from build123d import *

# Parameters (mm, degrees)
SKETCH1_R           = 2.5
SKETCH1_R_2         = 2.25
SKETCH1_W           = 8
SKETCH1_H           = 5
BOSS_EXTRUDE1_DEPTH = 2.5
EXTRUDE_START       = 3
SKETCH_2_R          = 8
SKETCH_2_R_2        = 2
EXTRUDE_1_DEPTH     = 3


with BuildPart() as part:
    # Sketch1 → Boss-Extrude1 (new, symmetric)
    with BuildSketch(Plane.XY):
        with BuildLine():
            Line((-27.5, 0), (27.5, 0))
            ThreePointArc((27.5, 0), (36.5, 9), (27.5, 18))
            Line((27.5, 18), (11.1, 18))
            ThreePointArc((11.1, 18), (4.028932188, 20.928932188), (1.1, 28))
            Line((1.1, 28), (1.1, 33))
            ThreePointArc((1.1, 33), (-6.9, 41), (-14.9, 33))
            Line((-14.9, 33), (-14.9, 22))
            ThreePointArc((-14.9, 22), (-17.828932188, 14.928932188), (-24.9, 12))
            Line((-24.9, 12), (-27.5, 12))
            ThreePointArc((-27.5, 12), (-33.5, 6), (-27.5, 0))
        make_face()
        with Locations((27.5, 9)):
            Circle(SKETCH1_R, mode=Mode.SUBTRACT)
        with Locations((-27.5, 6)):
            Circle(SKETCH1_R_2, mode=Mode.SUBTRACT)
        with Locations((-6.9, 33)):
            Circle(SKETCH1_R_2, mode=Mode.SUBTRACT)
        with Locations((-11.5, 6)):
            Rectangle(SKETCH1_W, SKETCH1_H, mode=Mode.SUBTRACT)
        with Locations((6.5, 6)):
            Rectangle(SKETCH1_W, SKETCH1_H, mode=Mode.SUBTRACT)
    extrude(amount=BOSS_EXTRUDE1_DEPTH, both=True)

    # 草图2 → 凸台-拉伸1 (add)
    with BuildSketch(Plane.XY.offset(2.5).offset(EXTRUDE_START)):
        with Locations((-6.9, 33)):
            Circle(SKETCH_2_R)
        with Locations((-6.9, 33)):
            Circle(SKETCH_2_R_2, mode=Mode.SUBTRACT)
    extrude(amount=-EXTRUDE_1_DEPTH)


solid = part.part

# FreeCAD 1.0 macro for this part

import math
import FreeCAD as App
import Part
import Sketcher


def add_polygon(sketch, points):
    """Adds a closed chain of lines whose ends are joined by coincident constraints."""
    first, n = sketch.GeometryCount, len(points)
    for a, b in zip(points, points[1:] + points[:1]):
        sketch.addGeometry(Part.LineSegment(App.Vector(*a, 0), App.Vector(*b, 0)), False)
    for i in range(n):
        sketch.addConstraint(Sketcher.Constraint("Coincident", first + i, 2, first + (i + 1) % n, 1))

doc = App.newDocument("Part")
params = doc.addObject("Spreadsheet::Sheet", "Params")
for row, (alias, value) in enumerate([
    ("sketch1_diameter", "5 mm"),
    ("sketch1_radius", "9 mm"),
    ("sketch1_radius2", "10 mm"),
    ("sketch1_radius3", "8 mm"),
    ("sketch1_radius4", "6 mm"),
    ("pad1_length", "5 mm"),
    ("sketch2_diameter", "16 mm"),
    ("sketch2_diameter2", "4 mm"),
    ("pad2_length", "3 mm"),
], start=1):
    params.set(f"A{row}", alias)
    params.set(f"B{row}", "=" + value)
    params.setAlias(f"B{row}", alias)

body = doc.addObject("PartDesign::Body", "Body")

# Sketch on XY plane
sketch1 = body.newObject("Sketcher::SketchObject", "Sketch")
sketch1.AttachmentSupport = (doc.getObject("XY_Plane"), [""])
sketch1.MapMode = "FlatFace"
sketch1.addGeometry(Part.LineSegment(App.Vector(-27.5, 0, 0), App.Vector(27.5, 0, 0)), False)  # 0
sketch1.addGeometry(Part.ArcOfCircle(Part.Circle(App.Vector(27.5, 9, 0), App.Vector(0, 0, 1), 9), math.radians(-90), math.radians(90)), False)  # 1
sketch1.addGeometry(Part.LineSegment(App.Vector(27.5, 18, 0), App.Vector(11.1, 18, 0)), False)  # 2
sketch1.addGeometry(Part.ArcOfCircle(Part.Circle(App.Vector(11.1, 28, 0), App.Vector(0, 0, 1), 10), math.radians(180), math.radians(270)), False)  # 3
sketch1.addGeometry(Part.LineSegment(App.Vector(1.1, 28, 0), App.Vector(1.1, 33, 0)), False)  # 4
sketch1.addGeometry(Part.ArcOfCircle(Part.Circle(App.Vector(-6.9, 33, 0), App.Vector(0, 0, 1), 8), math.radians(0), math.radians(180)), False)  # 5
sketch1.addGeometry(Part.LineSegment(App.Vector(-14.9, 33, 0), App.Vector(-14.9, 22, 0)), False)  # 6
sketch1.addGeometry(Part.ArcOfCircle(Part.Circle(App.Vector(-24.9, 22, 0), App.Vector(0, 0, 1), 10), math.radians(-90), math.radians(0)), False)  # 7
sketch1.addGeometry(Part.LineSegment(App.Vector(-24.9, 12, 0), App.Vector(-27.5, 12, 0)), False)  # 8
sketch1.addGeometry(Part.ArcOfCircle(Part.Circle(App.Vector(-27.5, 6, 0), App.Vector(0, 0, 1), 6), math.radians(90), math.radians(270)), False)  # 9
sketch1.addGeometry(Part.Circle(App.Vector(-27.5, 6, 0), App.Vector(0, 0, 1), 2.25), False)  # 10
add_polygon(sketch1, [(-7.5, 3.5), (-15.5, 3.5), (-15.5, 8.5), (-7.5, 8.5)])  # lines 11-14
add_polygon(sketch1, [(10.5, 3.5), (2.5, 3.5), (2.5, 8.5), (10.5, 8.5)])  # lines 15-18
sketch1.addGeometry(Part.Circle(App.Vector(27.5, 9, 0), App.Vector(0, 0, 1), 2.5), False)  # 19
sketch1.addGeometry(Part.Circle(App.Vector(-6.9, 33, 0), App.Vector(0, 0, 1), 2.25), False)  # 20
sketch1.addConstraint([
    Sketcher.Constraint("Tangent", 0, 2, 1, 1),
    Sketcher.Constraint("Tangent", 1, 2, 2, 1),
    Sketcher.Constraint("Tangent", 2, 2, 3, 2),
    Sketcher.Constraint("Tangent", 3, 1, 4, 1),
    Sketcher.Constraint("Tangent", 4, 2, 5, 1),
    Sketcher.Constraint("Tangent", 5, 2, 6, 1),
    Sketcher.Constraint("Tangent", 6, 2, 7, 2),
    Sketcher.Constraint("Tangent", 7, 1, 8, 1),
    Sketcher.Constraint("Tangent", 8, 2, 9, 1),
    Sketcher.Constraint("Tangent", 9, 2, 0, 1),
    Sketcher.Constraint("Horizontal", 0),
    Sketcher.Constraint("Horizontal", 2),
    Sketcher.Constraint("Vertical", 4),
    Sketcher.Constraint("Vertical", 6),
    Sketcher.Constraint("Horizontal", 8),
    Sketcher.Constraint("Horizontal", 11),
    Sketcher.Constraint("Vertical", 12),
    Sketcher.Constraint("Horizontal", 13),
    Sketcher.Constraint("Vertical", 14),
    Sketcher.Constraint("Horizontal", 15),
    Sketcher.Constraint("Vertical", 16),
    Sketcher.Constraint("Horizontal", 17),
    Sketcher.Constraint("Vertical", 18),
    Sketcher.Constraint("Coincident", 10, 3, 9, 3),
    Sketcher.Constraint("Coincident", 19, 3, 1, 3),
    Sketcher.Constraint("Coincident", 20, 3, 5, 3),
    Sketcher.Constraint("Equal", 3, 7),
    Sketcher.Constraint("Equal", 10, 20),
    Sketcher.Constraint("Symmetric", 0, 2, 9, 2, -1, 1),
    Sketcher.Constraint("Horizontal", 14, 2, 15, 2),
    Sketcher.Constraint("Horizontal", 13, 2, 16, 2),
    Sketcher.Constraint("Equal", 13, 15),
    Sketcher.Constraint("Equal", 4, 12),
    Sketcher.Constraint("Diameter", 19, 5.0),
    Sketcher.Constraint("Radius", 1, 9.0),
    Sketcher.Constraint("Radius", 3, 10.0),
    Sketcher.Constraint("Radius", 5, 8.0),
    Sketcher.Constraint("Radius", 9, 6.0),
    Sketcher.Constraint("Diameter", 10, 4.5),
    Sketcher.Constraint("DistanceX", 0, 1, 0, 2, 55.0),
    Sketcher.Constraint("DistanceX", 11, 2, 11, 1, 8.0),
    Sketcher.Constraint("DistanceY", 4, 1, 4, 2, 5.0),
    Sketcher.Constraint("DistanceX", 2, 2, 2, 1, 16.4),
    Sketcher.Constraint("DistanceX", 9, 3, 11, 2, 12.0),
    Sketcher.Constraint("DistanceX", 14, 2, 15, 2, 10.0),
    Sketcher.Constraint("DistanceY", -1, 1, 11, 2, 3.5),
])
sketch1.setExpression("Constraints[41]", "Params.sketch1_diameter")
sketch1.setExpression("Constraints[42]", "Params.sketch1_radius")
sketch1.setExpression("Constraints[43]", "Params.sketch1_radius2")
sketch1.setExpression("Constraints[44]", "Params.sketch1_radius3")
sketch1.setExpression("Constraints[45]", "Params.sketch1_radius4")
pad1 = body.newObject("PartDesign::Pad", "Pad")
pad1.Profile = sketch1
pad1.setExpression("Length", "Params.pad1_length")
pad1.Midplane = True

# Sketch on XY plane
sketch2 = body.newObject("Sketcher::SketchObject", "Sketch001")
sketch2.AttachmentSupport = (doc.getObject("XY_Plane"), [""])
sketch2.MapMode = "FlatFace"
sketch2.AttachmentOffset = App.Placement(App.Vector(0, 0, 5.5), App.Rotation())
sketch2.addGeometry([
    Part.Circle(App.Vector(-6.9, 33, 0), App.Vector(0, 0, 1), 8),
    Part.Circle(App.Vector(-6.9, 33, 0), App.Vector(0, 0, 1), 2),
], False)
sketch2.addConstraint([
    Sketcher.Constraint("Coincident", 1, 3, 0, 3),
    Sketcher.Constraint("Diameter", 0, 16.0),
    Sketcher.Constraint("Diameter", 1, 4.0),
    Sketcher.Constraint("DistanceY", -1, 1, 0, 3, 33.0),
    Sketcher.Constraint("DistanceX", 0, 3, -1, 1, 6.9),
])
sketch2.setExpression("Constraints[1]", "Params.sketch2_diameter")
sketch2.setExpression("Constraints[2]", "Params.sketch2_diameter2")
pad2 = body.newObject("PartDesign::Pad", "Pad001")
pad2.Profile = sketch2
pad2.setExpression("Length", "Params.pad2_length")
pad2.Reversed = True

doc.recompute()
